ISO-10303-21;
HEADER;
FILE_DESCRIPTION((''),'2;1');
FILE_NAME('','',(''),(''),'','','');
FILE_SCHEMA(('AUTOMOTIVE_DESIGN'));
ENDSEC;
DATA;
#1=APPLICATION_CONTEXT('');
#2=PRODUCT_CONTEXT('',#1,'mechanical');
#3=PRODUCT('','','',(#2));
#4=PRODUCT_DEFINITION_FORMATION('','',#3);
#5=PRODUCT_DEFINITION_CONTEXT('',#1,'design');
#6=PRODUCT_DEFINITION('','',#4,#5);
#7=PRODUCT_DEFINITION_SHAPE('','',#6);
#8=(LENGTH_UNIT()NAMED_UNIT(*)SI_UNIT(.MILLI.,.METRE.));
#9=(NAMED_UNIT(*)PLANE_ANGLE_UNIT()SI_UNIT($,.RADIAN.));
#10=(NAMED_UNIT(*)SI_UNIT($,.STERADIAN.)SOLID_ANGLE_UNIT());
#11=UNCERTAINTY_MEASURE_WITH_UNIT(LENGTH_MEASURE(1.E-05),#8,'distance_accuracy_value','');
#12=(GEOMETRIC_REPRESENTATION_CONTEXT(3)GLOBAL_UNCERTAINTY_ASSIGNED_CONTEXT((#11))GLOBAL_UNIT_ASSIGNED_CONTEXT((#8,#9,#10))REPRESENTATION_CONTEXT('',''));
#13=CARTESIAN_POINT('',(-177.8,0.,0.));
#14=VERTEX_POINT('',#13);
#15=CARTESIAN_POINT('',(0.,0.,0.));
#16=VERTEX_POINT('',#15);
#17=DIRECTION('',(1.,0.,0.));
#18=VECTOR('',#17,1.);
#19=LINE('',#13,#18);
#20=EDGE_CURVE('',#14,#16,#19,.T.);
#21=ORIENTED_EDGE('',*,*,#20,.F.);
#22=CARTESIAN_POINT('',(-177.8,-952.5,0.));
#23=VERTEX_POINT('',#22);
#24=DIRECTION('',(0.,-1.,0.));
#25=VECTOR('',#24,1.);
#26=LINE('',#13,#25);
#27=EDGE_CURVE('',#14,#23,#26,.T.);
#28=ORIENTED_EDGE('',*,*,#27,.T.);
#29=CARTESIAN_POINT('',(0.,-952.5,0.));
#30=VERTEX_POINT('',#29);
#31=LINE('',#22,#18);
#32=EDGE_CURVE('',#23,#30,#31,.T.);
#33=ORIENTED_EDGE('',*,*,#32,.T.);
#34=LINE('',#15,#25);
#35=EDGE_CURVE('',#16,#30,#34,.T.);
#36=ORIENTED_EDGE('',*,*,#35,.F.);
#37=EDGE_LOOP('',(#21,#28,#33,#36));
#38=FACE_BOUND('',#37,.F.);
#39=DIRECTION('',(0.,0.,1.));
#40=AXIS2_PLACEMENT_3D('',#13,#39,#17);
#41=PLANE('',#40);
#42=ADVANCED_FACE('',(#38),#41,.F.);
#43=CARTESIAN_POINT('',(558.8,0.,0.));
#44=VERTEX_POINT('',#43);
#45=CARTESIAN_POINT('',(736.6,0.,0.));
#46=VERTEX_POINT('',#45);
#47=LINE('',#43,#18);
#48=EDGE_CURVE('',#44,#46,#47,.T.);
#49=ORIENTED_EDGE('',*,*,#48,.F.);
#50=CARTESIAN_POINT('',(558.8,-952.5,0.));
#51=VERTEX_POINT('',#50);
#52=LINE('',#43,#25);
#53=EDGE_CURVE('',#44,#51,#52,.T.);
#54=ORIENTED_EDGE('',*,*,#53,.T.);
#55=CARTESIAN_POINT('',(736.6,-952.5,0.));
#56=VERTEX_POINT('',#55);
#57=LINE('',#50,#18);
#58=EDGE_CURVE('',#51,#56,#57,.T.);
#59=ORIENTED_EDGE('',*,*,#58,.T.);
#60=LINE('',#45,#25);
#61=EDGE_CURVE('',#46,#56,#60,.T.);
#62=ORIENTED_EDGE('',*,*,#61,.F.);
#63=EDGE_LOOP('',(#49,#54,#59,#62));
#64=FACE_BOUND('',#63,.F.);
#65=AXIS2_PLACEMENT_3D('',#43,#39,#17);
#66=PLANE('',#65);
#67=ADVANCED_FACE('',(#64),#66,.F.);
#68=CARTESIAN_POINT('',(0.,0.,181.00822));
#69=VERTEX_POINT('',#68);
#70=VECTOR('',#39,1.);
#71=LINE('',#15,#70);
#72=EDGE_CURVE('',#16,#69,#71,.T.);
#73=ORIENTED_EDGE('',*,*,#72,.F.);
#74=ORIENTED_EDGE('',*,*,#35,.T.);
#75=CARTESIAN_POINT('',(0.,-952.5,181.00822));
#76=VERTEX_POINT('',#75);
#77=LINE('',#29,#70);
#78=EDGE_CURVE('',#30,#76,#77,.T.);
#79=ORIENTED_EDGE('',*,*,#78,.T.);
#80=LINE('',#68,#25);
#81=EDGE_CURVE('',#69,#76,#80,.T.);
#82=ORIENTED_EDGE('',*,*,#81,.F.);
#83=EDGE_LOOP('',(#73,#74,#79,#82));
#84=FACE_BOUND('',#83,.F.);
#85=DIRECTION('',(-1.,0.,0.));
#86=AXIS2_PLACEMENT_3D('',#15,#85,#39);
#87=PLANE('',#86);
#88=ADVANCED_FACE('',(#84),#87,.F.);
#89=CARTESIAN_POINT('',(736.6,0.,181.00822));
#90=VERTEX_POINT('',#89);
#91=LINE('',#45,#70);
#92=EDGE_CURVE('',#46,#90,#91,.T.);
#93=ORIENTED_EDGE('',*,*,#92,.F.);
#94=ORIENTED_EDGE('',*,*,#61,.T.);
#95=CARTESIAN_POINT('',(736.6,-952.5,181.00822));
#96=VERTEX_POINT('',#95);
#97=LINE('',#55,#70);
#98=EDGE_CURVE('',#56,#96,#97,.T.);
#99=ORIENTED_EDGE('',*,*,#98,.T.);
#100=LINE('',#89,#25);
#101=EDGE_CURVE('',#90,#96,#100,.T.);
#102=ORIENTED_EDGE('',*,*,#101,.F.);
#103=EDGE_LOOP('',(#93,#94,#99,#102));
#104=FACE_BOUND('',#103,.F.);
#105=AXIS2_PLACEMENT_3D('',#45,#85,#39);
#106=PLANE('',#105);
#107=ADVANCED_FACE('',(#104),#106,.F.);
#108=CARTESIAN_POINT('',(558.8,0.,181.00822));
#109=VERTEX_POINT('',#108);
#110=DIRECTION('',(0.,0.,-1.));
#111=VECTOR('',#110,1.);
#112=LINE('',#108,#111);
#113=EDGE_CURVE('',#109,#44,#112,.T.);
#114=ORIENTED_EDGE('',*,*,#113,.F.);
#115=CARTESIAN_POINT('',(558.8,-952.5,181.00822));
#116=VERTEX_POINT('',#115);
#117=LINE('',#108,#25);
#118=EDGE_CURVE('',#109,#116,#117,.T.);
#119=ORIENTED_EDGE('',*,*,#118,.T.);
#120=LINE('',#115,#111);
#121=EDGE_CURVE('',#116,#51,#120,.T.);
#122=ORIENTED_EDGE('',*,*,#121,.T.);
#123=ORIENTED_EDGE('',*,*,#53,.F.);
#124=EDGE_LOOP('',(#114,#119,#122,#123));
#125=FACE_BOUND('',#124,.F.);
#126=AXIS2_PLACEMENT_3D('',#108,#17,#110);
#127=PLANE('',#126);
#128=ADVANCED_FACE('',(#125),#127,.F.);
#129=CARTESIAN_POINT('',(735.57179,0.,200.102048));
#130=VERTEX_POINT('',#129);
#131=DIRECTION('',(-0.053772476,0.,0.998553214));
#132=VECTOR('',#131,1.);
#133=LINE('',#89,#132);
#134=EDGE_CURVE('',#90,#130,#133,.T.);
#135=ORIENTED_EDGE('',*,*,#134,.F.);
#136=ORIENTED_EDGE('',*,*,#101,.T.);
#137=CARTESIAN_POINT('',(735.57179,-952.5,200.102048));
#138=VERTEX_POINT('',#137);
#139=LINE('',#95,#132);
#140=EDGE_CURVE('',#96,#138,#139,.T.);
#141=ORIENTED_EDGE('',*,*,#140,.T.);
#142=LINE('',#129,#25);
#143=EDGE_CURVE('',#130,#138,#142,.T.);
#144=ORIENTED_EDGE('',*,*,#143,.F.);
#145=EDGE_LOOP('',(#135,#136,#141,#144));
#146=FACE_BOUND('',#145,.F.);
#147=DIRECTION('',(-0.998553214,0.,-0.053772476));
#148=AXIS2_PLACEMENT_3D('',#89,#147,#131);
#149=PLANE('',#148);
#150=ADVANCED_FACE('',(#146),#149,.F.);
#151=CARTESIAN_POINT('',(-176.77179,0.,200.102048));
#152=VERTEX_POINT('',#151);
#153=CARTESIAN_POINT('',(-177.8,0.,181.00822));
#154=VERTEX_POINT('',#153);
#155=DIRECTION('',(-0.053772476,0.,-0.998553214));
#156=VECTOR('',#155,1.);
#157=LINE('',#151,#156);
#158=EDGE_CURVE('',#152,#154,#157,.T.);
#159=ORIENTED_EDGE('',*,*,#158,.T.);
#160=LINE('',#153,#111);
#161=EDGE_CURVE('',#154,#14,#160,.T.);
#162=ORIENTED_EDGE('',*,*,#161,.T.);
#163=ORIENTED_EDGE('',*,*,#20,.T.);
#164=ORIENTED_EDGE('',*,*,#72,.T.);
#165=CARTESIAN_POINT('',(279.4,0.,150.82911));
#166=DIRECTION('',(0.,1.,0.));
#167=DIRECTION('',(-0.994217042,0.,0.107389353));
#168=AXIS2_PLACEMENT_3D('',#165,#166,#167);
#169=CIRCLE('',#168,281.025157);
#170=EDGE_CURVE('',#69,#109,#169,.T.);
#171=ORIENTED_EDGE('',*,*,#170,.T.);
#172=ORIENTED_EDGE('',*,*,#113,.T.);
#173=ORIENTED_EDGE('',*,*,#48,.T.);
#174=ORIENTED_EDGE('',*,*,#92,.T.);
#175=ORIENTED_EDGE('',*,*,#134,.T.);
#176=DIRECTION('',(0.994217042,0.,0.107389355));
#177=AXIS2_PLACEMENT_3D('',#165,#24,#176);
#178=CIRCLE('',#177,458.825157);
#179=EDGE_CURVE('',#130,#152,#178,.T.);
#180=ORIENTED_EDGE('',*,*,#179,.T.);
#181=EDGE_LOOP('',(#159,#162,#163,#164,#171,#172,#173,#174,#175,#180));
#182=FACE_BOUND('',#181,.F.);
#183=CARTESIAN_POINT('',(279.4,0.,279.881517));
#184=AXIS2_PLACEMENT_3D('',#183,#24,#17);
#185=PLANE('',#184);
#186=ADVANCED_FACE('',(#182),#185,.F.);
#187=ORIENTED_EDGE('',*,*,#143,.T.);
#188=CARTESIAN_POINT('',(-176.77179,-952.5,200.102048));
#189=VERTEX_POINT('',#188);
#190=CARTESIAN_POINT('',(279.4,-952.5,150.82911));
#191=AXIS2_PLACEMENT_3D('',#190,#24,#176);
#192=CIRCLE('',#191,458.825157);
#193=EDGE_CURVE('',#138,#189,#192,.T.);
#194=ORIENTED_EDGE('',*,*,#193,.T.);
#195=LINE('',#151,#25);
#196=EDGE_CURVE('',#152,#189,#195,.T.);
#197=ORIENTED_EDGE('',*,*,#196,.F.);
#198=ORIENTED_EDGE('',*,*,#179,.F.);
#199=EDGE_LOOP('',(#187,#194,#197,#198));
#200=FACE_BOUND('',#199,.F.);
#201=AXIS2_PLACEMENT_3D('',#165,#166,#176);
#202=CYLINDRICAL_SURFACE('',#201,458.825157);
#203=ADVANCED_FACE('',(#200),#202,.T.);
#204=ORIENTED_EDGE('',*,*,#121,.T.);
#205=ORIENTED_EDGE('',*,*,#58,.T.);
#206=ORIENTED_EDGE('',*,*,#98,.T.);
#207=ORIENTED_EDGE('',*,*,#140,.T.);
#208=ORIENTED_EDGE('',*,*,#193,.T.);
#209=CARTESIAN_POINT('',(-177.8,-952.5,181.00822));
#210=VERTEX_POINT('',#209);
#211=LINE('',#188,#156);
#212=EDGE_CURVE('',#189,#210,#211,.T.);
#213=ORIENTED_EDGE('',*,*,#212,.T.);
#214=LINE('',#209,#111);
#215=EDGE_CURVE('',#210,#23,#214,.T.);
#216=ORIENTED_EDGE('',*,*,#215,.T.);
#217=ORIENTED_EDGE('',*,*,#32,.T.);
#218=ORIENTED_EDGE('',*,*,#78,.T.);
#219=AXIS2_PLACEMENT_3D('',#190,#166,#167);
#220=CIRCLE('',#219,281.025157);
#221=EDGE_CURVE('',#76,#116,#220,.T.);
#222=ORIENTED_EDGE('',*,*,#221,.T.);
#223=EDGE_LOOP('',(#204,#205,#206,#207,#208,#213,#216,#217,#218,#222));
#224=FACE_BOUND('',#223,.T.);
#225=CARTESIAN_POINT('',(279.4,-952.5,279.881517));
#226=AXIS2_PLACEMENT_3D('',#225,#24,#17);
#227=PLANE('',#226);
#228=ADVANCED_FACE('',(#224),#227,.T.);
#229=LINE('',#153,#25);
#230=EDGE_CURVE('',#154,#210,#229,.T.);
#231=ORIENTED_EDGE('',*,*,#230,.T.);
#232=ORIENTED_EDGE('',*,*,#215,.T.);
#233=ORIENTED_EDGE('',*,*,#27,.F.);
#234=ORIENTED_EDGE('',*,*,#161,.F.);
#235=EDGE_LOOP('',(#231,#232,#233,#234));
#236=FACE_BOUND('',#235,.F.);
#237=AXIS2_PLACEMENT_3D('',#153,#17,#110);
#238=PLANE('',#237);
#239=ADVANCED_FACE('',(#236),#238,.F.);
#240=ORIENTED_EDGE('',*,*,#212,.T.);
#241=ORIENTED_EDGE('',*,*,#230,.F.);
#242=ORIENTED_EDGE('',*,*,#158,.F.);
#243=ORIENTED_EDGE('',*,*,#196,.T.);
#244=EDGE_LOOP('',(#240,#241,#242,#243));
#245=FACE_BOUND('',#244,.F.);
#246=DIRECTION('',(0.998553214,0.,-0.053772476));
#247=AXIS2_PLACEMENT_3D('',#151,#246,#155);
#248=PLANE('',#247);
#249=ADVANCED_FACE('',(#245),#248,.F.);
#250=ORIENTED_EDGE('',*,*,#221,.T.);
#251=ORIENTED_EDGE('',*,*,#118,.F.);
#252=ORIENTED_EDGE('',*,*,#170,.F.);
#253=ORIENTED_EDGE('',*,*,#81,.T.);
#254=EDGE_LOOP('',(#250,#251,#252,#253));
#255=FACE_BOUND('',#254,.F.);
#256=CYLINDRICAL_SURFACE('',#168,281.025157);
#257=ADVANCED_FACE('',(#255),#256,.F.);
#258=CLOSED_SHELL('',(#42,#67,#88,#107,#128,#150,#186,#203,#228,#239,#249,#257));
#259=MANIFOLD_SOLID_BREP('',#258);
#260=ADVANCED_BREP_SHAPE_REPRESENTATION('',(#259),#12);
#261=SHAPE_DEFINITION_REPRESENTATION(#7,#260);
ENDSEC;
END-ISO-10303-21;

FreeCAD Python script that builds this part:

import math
import FreeCAD as App
import Part
import Sketcher
Q = App.Units.Quantity

doc = App.newDocument("Part")
body = doc.addObject("PartDesign::Body", "Body")

sketch1 = body.newObject("Sketcher::SketchObject", "Sketch")
sketch1.AttachmentSupport = (doc.getObject("XZ_Plane"), [""])
sketch1.MapMode = "FlatFace"
sketch1.addGeometry(Part.LineSegment(App.Vector(-177.8, 0, 0), App.Vector(0, 0, 0)), False)
sketch1.addGeometry(Part.LineSegment(App.Vector(0, 0, 0), App.Vector(0, 181.00822, 0)), False)
sketch1.addGeometry(Part.ArcOfCircle(Part.Circle(App.Vector(279.4, 150.82911, 0), App.Vector(0, 0, 1), 281.025157), math.radians(6.164845), math.radians(173.835155)), False)
sketch1.addGeometry(Part.LineSegment(App.Vector(558.8, 181.00822, 0), App.Vector(558.8, 0, 0)), False)
sketch1.addGeometry(Part.LineSegment(App.Vector(558.8, 0, 0), App.Vector(736.6, 0, 0)), False)
sketch1.addGeometry(Part.LineSegment(App.Vector(736.6, 0, 0), App.Vector(736.6, 181.00822, 0)), False)
sketch1.addGeometry(Part.LineSegment(App.Vector(736.6, 181.00822, 0), App.Vector(735.57179, 200.102048, 0)), False)
sketch1.addGeometry(Part.ArcOfCircle(Part.Circle(App.Vector(279.4, 150.82911, 0), App.Vector(0, 0, 1), 458.825157), math.radians(6.164845), math.radians(173.835155)), False)
sketch1.addGeometry(Part.LineSegment(App.Vector(-176.77179, 200.102048, 0), App.Vector(-177.8, 181.00822, 0)), False)
sketch1.addGeometry(Part.LineSegment(App.Vector(-177.8, 181.00822, 0), App.Vector(-177.8, 0, 0)), False)
sketch1.addConstraint(Sketcher.Constraint("Coincident", 0, 2, 1, 1))
sketch1.addConstraint(Sketcher.Constraint("Coincident", 1, 2, 2, 2))
sketch1.addConstraint(Sketcher.Constraint("Coincident", 2, 1, 3, 1))
sketch1.addConstraint(Sketcher.Constraint("Coincident", 3, 2, 4, 1))
sketch1.addConstraint(Sketcher.Constraint("Coincident", 4, 2, 5, 1))
sketch1.addConstraint(Sketcher.Constraint("Coincident", 5, 2, 6, 1))
sketch1.addConstraint(Sketcher.Constraint("Coincident", 6, 2, 7, 1))
sketch1.addConstraint(Sketcher.Constraint("Coincident", 7, 2, 8, 1))
sketch1.addConstraint(Sketcher.Constraint("Coincident", 8, 2, 9, 1))
sketch1.addConstraint(Sketcher.Constraint("Coincident", 9, 2, 0, 1))
sketch1.addConstraint(Sketcher.Constraint("Horizontal", 0))
sketch1.addConstraint(Sketcher.Constraint("Vertical", 1))
sketch1.addConstraint(Sketcher.Constraint("Vertical", 3))
sketch1.addConstraint(Sketcher.Constraint("Horizontal", 4))
sketch1.addConstraint(Sketcher.Constraint("Vertical", 5))
sketch1.addConstraint(Sketcher.Constraint("Vertical", 9))
sketch1.addConstraint(Sketcher.Constraint("Coincident", 0, 2, -1, 1))
sketch1.addConstraint(Sketcher.Constraint("Coincident", 7, 3, 2, 3))
sketch1.addConstraint(Sketcher.Constraint("PointOnObject", 3, 2, -1))
sketch1.addConstraint(Sketcher.Constraint("Horizontal", 1, 2, 2, 1))
sketch1.addConstraint(Sketcher.Constraint("Horizontal", 2, 1, 5, 2))
sketch1.addConstraint(Sketcher.Constraint("Horizontal", 6, 2, 7, 2))
sketch1.addConstraint(Sketcher.Constraint("Horizontal", 5, 2, 8, 2))
sketch1.addConstraint(Sketcher.Constraint("Equal", 0, 4))
sketch1.addConstraint(Sketcher.Constraint("DistanceX", 0, 1, 0, 2, Q("7 in")))
sketch1.addConstraint(Sketcher.Constraint("DistanceX", -1, 1, 2, 3, Q("11 in")))
sketch1.addConstraint(Sketcher.Constraint("Radius", 2, 281.025157))
sketch1.addConstraint(Sketcher.Constraint("Radius", 7, 458.825157))
sketch1.addConstraint(Sketcher.Constraint("DistanceY", 1, 1, 1, 2, 181.00822))
sketch1.addConstraint(Sketcher.Constraint("DistanceX", -1, 1, 6, 2, 735.57179))
pad1 = body.newObject("PartDesign::Pad", "Pad")
pad1.Profile = sketch1
pad1.Length = Q("37.5 in")

doc.recompute()
